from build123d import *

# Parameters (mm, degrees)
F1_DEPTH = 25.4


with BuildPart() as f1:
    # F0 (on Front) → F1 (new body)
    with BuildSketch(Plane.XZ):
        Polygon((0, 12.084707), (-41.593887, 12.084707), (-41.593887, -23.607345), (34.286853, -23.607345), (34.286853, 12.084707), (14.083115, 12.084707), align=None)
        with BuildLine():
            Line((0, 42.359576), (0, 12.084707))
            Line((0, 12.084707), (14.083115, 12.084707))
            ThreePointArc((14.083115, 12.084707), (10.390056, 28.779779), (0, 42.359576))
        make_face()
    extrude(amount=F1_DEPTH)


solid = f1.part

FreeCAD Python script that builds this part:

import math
import FreeCAD as App
import Part
import Sketcher

V = App.Vector
Q = App.Units.Quantity

doc = App.newDocument("Part")
body = doc.addObject("PartDesign::Body", "Body")

# Sketch on XZ plane
sketch1 = doc.addObject("Sketcher::SketchObject", "Sketch")
body.addObject(sketch1)
sketch1.AttachmentSupport = (doc.XZ_Plane, [""])
sketch1.MapMode = "FlatFace"
sketch1.addGeometry([
    Part.LineSegment(V(-42, 12, 0), V(-42, -24, 0)),  # 0
    Part.LineSegment(V(-42, -24, 0), V(34, -24, 0)),  # 1
    Part.LineSegment(V(34, -24, 0), V(34, 12, 0)),  # 2
    Part.LineSegment(V(34, 12, 0), V(14, 12, 0)),  # 3
    Part.ArcOfCircle(Part.Circle(V(-25, 12, 0), V(0, 0, 1), 40), math.radians(0), math.radians(50)),  # 4
    Part.LineSegment(V(0, 42, 0), V(0, 12, 0)),  # 5
    Part.LineSegment(V(0, 12, 0), V(-42, 12, 0)),  # 6
], False)
sketch1.addConstraint([
    Sketcher.Constraint("Coincident", 0, 2, 1, 1),
    Sketcher.Constraint("Coincident", 1, 2, 2, 1),
    Sketcher.Constraint("Coincident", 2, 2, 3, 1),
    Sketcher.Constraint("Coincident", 3, 2, 4, 1),
    Sketcher.Constraint("Coincident", 4, 2, 5, 1),
    Sketcher.Constraint("Coincident", 5, 2, 6, 1),
    Sketcher.Constraint("Coincident", 6, 2, 0, 1),
    Sketcher.Constraint("Vertical", 0),
    Sketcher.Constraint("Horizontal", 1),
    Sketcher.Constraint("Vertical", 2),
    Sketcher.Constraint("Horizontal", 3),
    Sketcher.Constraint("Vertical", 5),
    Sketcher.Constraint("Horizontal", 6),
    Sketcher.Constraint("PointOnObject", 4, 2, -2),
    Sketcher.Constraint("Horizontal", 3, 2, 5, 2),
    Sketcher.Constraint("DistanceY", -1, 1, 4, 2, Q("1.6676998 in")),
    Sketcher.Constraint("Radius", 4, 39.582934),
    Sketcher.Constraint("DistanceX", 1, 1, 1, 2, 75.88074),
    Sketcher.Constraint("DistanceX", 3, 2, 3, 1, 20.203738),
    Sketcher.Constraint("DistanceY", 0, 2, 0, 1, 35.692052),
    Sketcher.Constraint("DistanceY", 5, 2, 5, 1, 30.274869),
    Sketcher.Constraint("DistanceX", 6, 2, 6, 1, 41.593887),
])
pad1 = doc.addObject("PartDesign::Pad", "Pad")
body.addObject(pad1)
pad1.Profile = sketch1
pad1.Length = Q("1 in")

doc.recompute()
